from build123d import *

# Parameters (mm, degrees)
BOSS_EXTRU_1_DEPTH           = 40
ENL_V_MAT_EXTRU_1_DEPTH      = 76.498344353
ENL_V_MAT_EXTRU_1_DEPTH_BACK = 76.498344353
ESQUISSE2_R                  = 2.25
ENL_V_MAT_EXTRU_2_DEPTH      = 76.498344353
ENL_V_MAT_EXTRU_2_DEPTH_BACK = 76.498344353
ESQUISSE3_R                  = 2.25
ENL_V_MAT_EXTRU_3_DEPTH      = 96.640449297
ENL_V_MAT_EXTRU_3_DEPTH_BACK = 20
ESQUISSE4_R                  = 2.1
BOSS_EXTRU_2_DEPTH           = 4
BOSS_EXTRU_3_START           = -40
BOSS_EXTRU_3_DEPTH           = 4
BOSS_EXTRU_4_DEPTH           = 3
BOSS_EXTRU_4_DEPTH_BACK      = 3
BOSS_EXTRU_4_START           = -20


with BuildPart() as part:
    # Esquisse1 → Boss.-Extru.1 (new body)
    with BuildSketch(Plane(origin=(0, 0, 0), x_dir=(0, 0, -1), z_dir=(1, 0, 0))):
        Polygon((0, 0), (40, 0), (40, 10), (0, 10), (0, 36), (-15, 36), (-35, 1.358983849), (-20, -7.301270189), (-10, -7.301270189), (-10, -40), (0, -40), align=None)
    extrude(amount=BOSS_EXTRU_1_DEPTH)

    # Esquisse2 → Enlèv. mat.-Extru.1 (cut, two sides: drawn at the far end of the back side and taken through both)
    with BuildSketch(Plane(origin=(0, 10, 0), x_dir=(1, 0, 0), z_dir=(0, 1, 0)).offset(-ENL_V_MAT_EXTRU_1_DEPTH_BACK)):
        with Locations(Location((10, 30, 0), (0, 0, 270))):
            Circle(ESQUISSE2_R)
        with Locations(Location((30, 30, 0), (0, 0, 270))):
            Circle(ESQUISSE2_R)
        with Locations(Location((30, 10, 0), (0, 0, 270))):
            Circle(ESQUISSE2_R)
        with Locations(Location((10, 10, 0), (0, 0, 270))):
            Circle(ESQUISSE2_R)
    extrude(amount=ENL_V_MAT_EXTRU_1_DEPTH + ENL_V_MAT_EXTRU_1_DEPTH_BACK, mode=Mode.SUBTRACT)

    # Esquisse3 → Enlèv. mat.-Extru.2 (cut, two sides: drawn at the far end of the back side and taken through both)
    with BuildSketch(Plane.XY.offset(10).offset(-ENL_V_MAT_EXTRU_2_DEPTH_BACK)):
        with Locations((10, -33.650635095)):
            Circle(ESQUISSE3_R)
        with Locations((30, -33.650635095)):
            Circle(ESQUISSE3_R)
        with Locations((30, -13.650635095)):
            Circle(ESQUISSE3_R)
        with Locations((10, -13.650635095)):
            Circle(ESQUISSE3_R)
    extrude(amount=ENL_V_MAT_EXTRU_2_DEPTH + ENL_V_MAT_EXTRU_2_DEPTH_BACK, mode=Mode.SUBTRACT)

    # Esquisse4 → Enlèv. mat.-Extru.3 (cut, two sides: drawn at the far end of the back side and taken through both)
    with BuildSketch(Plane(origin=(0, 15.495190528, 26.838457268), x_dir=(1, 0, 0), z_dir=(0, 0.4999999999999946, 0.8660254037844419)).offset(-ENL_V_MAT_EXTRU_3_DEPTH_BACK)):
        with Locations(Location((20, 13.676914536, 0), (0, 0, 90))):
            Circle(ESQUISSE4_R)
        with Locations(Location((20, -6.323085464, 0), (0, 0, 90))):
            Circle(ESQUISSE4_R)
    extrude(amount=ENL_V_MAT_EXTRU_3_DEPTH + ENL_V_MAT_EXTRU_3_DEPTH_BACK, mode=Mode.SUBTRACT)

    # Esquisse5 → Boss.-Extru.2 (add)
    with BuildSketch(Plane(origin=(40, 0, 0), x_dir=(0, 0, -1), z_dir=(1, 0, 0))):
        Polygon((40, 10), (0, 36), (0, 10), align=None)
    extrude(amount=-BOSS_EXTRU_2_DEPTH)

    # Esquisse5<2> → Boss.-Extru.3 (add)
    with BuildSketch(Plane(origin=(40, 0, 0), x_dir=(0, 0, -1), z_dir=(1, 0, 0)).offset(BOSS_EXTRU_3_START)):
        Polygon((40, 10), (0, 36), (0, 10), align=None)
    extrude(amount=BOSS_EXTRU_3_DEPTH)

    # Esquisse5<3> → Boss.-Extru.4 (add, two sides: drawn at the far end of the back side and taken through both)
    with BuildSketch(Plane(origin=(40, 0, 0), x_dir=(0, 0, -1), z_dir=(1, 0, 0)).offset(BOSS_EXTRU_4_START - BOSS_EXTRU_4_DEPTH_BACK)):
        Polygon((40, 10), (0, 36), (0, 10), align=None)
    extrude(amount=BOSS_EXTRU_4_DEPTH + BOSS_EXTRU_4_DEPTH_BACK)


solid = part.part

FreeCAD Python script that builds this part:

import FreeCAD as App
import Part
import Sketcher
from FreeCAD import Vector
Q = App.Units.Quantity

doc = App.newDocument("Part")
body = doc.addObject("PartDesign::Body", "Body")

sketch1 = body.newObject("Sketcher::SketchObject", "Sketch")
sketch1.AttachmentSupport = (doc.getObject("YZ_Plane"), [""])
sketch1.MapMode = "FlatFace"
sketch1.addGeometry(Part.LineSegment(Vector(0, 0, 0), Vector(0, -40, 0)), False)
sketch1.addGeometry(Part.LineSegment(Vector(0, -40, 0), Vector(10, -40, 0)), False)
sketch1.addGeometry(Part.LineSegment(Vector(10, -40, 0), Vector(10, 0, 0)), False)
sketch1.addGeometry(Part.LineSegment(Vector(10, 0, 0), Vector(36, 0, 0)), False)
sketch1.addGeometry(Part.LineSegment(Vector(36, 0, 0), Vector(36, 15, 0)), False)
sketch1.addGeometry(Part.LineSegment(Vector(36, 15, 0), Vector(1.358984, 35, 0)), False)
sketch1.addGeometry(Part.LineSegment(Vector(1.358984, 35, 0), Vector(-7.30127, 20, 0)), False)
sketch1.addGeometry(Part.LineSegment(Vector(-7.30127, 20, 0), Vector(-7.30127, 10, 0)), False)
sketch1.addGeometry(Part.LineSegment(Vector(-7.30127, 10, 0), Vector(-40, 10, 0)), False)
sketch1.addGeometry(Part.LineSegment(Vector(-40, 10, 0), Vector(-40, 0, 0)), False)
sketch1.addGeometry(Part.LineSegment(Vector(-40, 0, 0), Vector(0, 0, 0)), False)
sketch1.addConstraint(Sketcher.Constraint("Coincident", 0, 2, 1, 1))
sketch1.addConstraint(Sketcher.Constraint("Coincident", 1, 2, 2, 1))
sketch1.addConstraint(Sketcher.Constraint("Coincident", 2, 2, 3, 1))
sketch1.addConstraint(Sketcher.Constraint("Coincident", 3, 2, 4, 1))
sketch1.addConstraint(Sketcher.Constraint("Coincident", 4, 2, 5, 1))
sketch1.addConstraint(Sketcher.Constraint("Coincident", 5, 2, 6, 1))
sketch1.addConstraint(Sketcher.Constraint("Coincident", 6, 2, 7, 1))
sketch1.addConstraint(Sketcher.Constraint("Coincident", 7, 2, 8, 1))
sketch1.addConstraint(Sketcher.Constraint("Coincident", 8, 2, 9, 1))
sketch1.addConstraint(Sketcher.Constraint("Coincident", 9, 2, 10, 1))
sketch1.addConstraint(Sketcher.Constraint("Coincident", 10, 2, 0, 1))
sketch1.addConstraint(Sketcher.Constraint("Vertical", 0))
sketch1.addConstraint(Sketcher.Constraint("Horizontal", 1))
sketch1.addConstraint(Sketcher.Constraint("Vertical", 2))
sketch1.addConstraint(Sketcher.Constraint("Horizontal", 3))
sketch1.addConstraint(Sketcher.Constraint("Vertical", 4))
sketch1.addConstraint(Sketcher.Constraint("Vertical", 7))
sketch1.addConstraint(Sketcher.Constraint("Horizontal", 8))
sketch1.addConstraint(Sketcher.Constraint("Vertical", 9))
sketch1.addConstraint(Sketcher.Constraint("Horizontal", 10))
sketch1.addConstraint(Sketcher.Constraint("Coincident", 10, 2, -1, 1))
sketch1.addConstraint(Sketcher.Constraint("PointOnObject", 2, 2, -1))
sketch1.addConstraint(Sketcher.Constraint("Perpendicular", 5, 6))
sketch1.addConstraint(Sketcher.Constraint("Equal", 10, 0))
sketch1.addConstraint(Sketcher.Constraint("Equal", 1, 7))
sketch1.addConstraint(Sketcher.Constraint("Equal", 7, 9))
sketch1.addConstraint(Sketcher.Constraint("DistanceX", 1, 1, 1, 2, Q("10 mm")))
sketch1.addConstraint(Sketcher.Constraint("DistanceX", 3, 1, 3, 2, Q("26 mm")))
sketch1.addConstraint(Sketcher.Constraint("DistanceX", 10, 1, 10, 2, Q("40 mm")))
sketch1.addConstraint(Sketcher.Constraint("DistanceY", 4, 1, 4, 2, Q("15 mm")))
sketch1.addConstraint(Sketcher.Constraint("Angle", 5, Q("150 deg")))
sketch1.addConstraint(Sketcher.Constraint("Distance", 5, Q("40 mm")))
pad1 = body.newObject("PartDesign::Pad", "Pad")
pad1.Profile = sketch1
pad1.Length = 40

sketch2 = body.newObject("Sketcher::SketchObject", "Sketch001")
sketch2.AttachmentSupport = (doc.getObject("XZ_Plane"), [""])
sketch2.MapMode = "FlatFace"
sketch2.AttachmentOffset = App.Placement(Vector(0, 0, -10), App.Rotation())
sketch2.addGeometry(Part.Circle(Vector(10, -30, 0), Vector(0, 0, 1), 2.25), False)
sketch2.addGeometry(Part.Circle(Vector(30, -30, 0), Vector(0, 0, 1), 2.25), False)
sketch2.addGeometry(Part.Circle(Vector(30, -10, 0), Vector(0, 0, 1), 2.25), False)
sketch2.addGeometry(Part.Circle(Vector(10, -10, 0), Vector(0, 0, 1), 2.25), False)
sketch2.addConstraint(Sketcher.Constraint("Equal", 0, 1))
sketch2.addConstraint(Sketcher.Constraint("Equal", 1, 2))
sketch2.addConstraint(Sketcher.Constraint("Equal", 2, 3))
sketch2.addConstraint(Sketcher.Constraint("Horizontal", 0, 3, 1, 3))
sketch2.addConstraint(Sketcher.Constraint("Horizontal", 2, 3, 3, 3))
sketch2.addConstraint(Sketcher.Constraint("Vertical", 1, 3, 2, 3))
sketch2.addConstraint(Sketcher.Constraint("Vertical", 0, 3, 3, 3))
sketch2.addConstraint(Sketcher.Constraint("Diameter", 0, Q("4.5 mm")))
sketch2.addConstraint(Sketcher.Constraint("DistanceX", -1, 1, 0, 3, Q("10 mm")))
sketch2.addConstraint(Sketcher.Constraint("DistanceY", 0, 3, -1, 1, Q("30 mm")))
sketch2.addConstraint(Sketcher.Constraint("DistanceX", -1, 1, 1, 3, Q("30 mm")))
sketch2.addConstraint(Sketcher.Constraint("DistanceY", 2, 3, -1, 1, Q("10 mm")))
pocket1 = body.newObject("PartDesign::Pocket", "Pocket")
pocket1.Profile = sketch2
pocket1.Type = "ThroughAll"
pocket1.Midplane = True

sketch3 = body.newObject("Sketcher::SketchObject", "Sketch002")
sketch3.AttachmentSupport = (doc.getObject("XY_Plane"), [""])
sketch3.MapMode = "FlatFace"
sketch3.AttachmentOffset = App.Placement(Vector(0, 0, 10), App.Rotation())
sketch3.addGeometry(Part.Circle(Vector(10, -33.650635, 0), Vector(0, 0, 1), 2.25), False)
sketch3.addGeometry(Part.Circle(Vector(30, -33.650635, 0), Vector(0, 0, 1), 2.25), False)
sketch3.addGeometry(Part.Circle(Vector(30, -13.650635, 0), Vector(0, 0, 1), 2.25), False)
sketch3.addGeometry(Part.Circle(Vector(10, -13.650635, 0), Vector(0, 0, 1), 2.25), False)
sketch3.addConstraint(Sketcher.Constraint("Equal", 0, 1))
sketch3.addConstraint(Sketcher.Constraint("Equal", 1, 2))
sketch3.addConstraint(Sketcher.Constraint("Equal", 2, 3))
sketch3.addConstraint(Sketcher.Constraint("Horizontal", 0, 3, 1, 3))
sketch3.addConstraint(Sketcher.Constraint("Horizontal", 2, 3, 3, 3))
sketch3.addConstraint(Sketcher.Constraint("Vertical", 1, 3, 2, 3))
sketch3.addConstraint(Sketcher.Constraint("Vertical", 0, 3, 3, 3))
sketch3.addConstraint(Sketcher.Constraint("Diameter", 0, Q("4.5 mm")))
sketch3.addConstraint(Sketcher.Constraint("DistanceX", -1, 1, 0, 3, Q("10 mm")))
sketch3.addConstraint(Sketcher.Constraint("DistanceX", -1, 1, 1, 3, Q("30 mm")))
sketch3.addConstraint(Sketcher.Constraint("DistanceY", 1, 3, 2, 3, Q("20 mm")))
sketch3.addConstraint(Sketcher.Constraint("DistanceY", 0, 3, -1, 1, Q("33.650635 mm")))
pocket2 = body.newObject("PartDesign::Pocket", "Pocket001")
pocket2.Profile = sketch3
pocket2.Type = "ThroughAll"
pocket2.Midplane = True

sketch4 = body.newObject("Sketcher::SketchObject", "Sketch003")
sketch4.Placement = App.Placement(Vector(0, 15.495191, 26.838457), App.Rotation(Vector(1, 0, 0), Vector(0, 0.866025404, -0.5), Vector(0, 0.5, 0.866025404), "ZXY"))
sketch4.addGeometry(Part.Circle(Vector(20, 13.676915, 0), Vector(0, 0, 1), 2.1), False)
sketch4.addGeometry(Part.Circle(Vector(20, -6.323085, 0), Vector(0, 0, 1), 2.1), False)
sketch4.addConstraint(Sketcher.Constraint("Equal", 0, 1))
sketch4.addConstraint(Sketcher.Constraint("Vertical", 0, 3, 1, 3))
sketch4.addConstraint(Sketcher.Constraint("Diameter", 0, Q("4.2 mm")))
sketch4.addConstraint(Sketcher.Constraint("DistanceX", -1, 1, 0, 3, Q("20 mm")))
sketch4.addConstraint(Sketcher.Constraint("DistanceY", 1, 3, 0, 3, Q("20 mm")))
sketch4.addConstraint(Sketcher.Constraint("DistanceY", -1, 1, 0, 3, Q("13.676915 mm")))
pocket3 = body.newObject("PartDesign::Pocket", "Pocket002")
pocket3.Profile = sketch4
pocket3.Type = "TwoLengths"
pocket3.Length = 96.640449
pocket3.Length2 = 20
pocket3.Reversed = True

sketch5 = body.newObject("Sketcher::SketchObject", "Sketch004")
sketch5.AttachmentSupport = (doc.getObject("YZ_Plane"), [""])
sketch5.MapMode = "FlatFace"
sketch5.AttachmentOffset = App.Placement(Vector(0, 0, 40), App.Rotation())
sketch5.addGeometry(Part.LineSegment(Vector(10, -40, 0), Vector(36, 0, 0)), False)
sketch5.addGeometry(Part.LineSegment(Vector(36, 0, 0), Vector(10, 0, 0)), False)
sketch5.addGeometry(Part.LineSegment(Vector(10, 0, 0), Vector(10, -40, 0)), False)
sketch5.addConstraint(Sketcher.Constraint("Coincident", 0, 2, 1, 1))
sketch5.addConstraint(Sketcher.Constraint("Coincident", 1, 2, 2, 1))
sketch5.addConstraint(Sketcher.Constraint("Coincident", 2, 2, 0, 1))
sketch5.addConstraint(Sketcher.Constraint("Horizontal", 1))
sketch5.addConstraint(Sketcher.Constraint("Vertical", 2))
sketch5.addConstraint(Sketcher.Constraint("PointOnObject", 0, 2, -1))
sketch5.addConstraint(Sketcher.Constraint("DistanceX", 1, 2, 1, 1, Q("26 mm")))
sketch5.addConstraint(Sketcher.Constraint("DistanceY", 2, 2, 2, 1, Q("40 mm")))
sketch5.addConstraint(Sketcher.Constraint("DistanceX", -1, 1, 0, 2, Q("36 mm")))
pad2 = body.newObject("PartDesign::Pad", "Pad001")
pad2.Profile = sketch5
pad2.Length = 4
pad2.Reversed = True

sketch6 = body.newObject("Sketcher::SketchObject", "Sketch005")
sketch6.AttachmentSupport = (doc.getObject("YZ_Plane"), [""])
sketch6.MapMode = "FlatFace"
sketch6.addGeometry(Part.LineSegment(Vector(10, -40, 0), Vector(36, 0, 0)), False)
sketch6.addGeometry(Part.LineSegment(Vector(36, 0, 0), Vector(10, 0, 0)), False)
sketch6.addGeometry(Part.LineSegment(Vector(10, 0, 0), Vector(10, -40, 0)), False)
sketch6.addConstraint(Sketcher.Constraint("Coincident", 0, 2, 1, 1))
sketch6.addConstraint(Sketcher.Constraint("Coincident", 1, 2, 2, 1))
sketch6.addConstraint(Sketcher.Constraint("Coincident", 2, 2, 0, 1))
sketch6.addConstraint(Sketcher.Constraint("Horizontal", 1))
sketch6.addConstraint(Sketcher.Constraint("Vertical", 2))
sketch6.addConstraint(Sketcher.Constraint("PointOnObject", 0, 2, -1))
sketch6.addConstraint(Sketcher.Constraint("DistanceX", 1, 2, 1, 1, Q("26 mm")))
sketch6.addConstraint(Sketcher.Constraint("DistanceY", 2, 2, 2, 1, Q("40 mm")))
sketch6.addConstraint(Sketcher.Constraint("DistanceX", -1, 1, 0, 2, Q("36 mm")))
pad3 = body.newObject("PartDesign::Pad", "Pad002")
pad3.Profile = sketch6
pad3.Length = 4

sketch7 = body.newObject("Sketcher::SketchObject", "Sketch006")
sketch7.AttachmentSupport = (doc.getObject("YZ_Plane"), [""])
sketch7.MapMode = "FlatFace"
sketch7.AttachmentOffset = App.Placement(Vector(0, 0, 20), App.Rotation())
sketch7.addGeometry(Part.LineSegment(Vector(10, -40, 0), Vector(36, 0, 0)), False)
sketch7.addGeometry(Part.LineSegment(Vector(36, 0, 0), Vector(10, 0, 0)), False)
sketch7.addGeometry(Part.LineSegment(Vector(10, 0, 0), Vector(10, -40, 0)), False)
sketch7.addConstraint(Sketcher.Constraint("Coincident", 0, 2, 1, 1))
sketch7.addConstraint(Sketcher.Constraint("Coincident", 1, 2, 2, 1))
sketch7.addConstraint(Sketcher.Constraint("Coincident", 2, 2, 0, 1))
sketch7.addConstraint(Sketcher.Constraint("Horizontal", 1))
sketch7.addConstraint(Sketcher.Constraint("Vertical", 2))
sketch7.addConstraint(Sketcher.Constraint("PointOnObject", 0, 2, -1))
sketch7.addConstraint(Sketcher.Constraint("DistanceX", 1, 2, 1, 1, Q("26 mm")))
sketch7.addConstraint(Sketcher.Constraint("DistanceY", 2, 2, 2, 1, Q("40 mm")))
sketch7.addConstraint(Sketcher.Constraint("DistanceX", -1, 1, 0, 2, Q("36 mm")))
pad4 = body.newObject("PartDesign::Pad", "Pad003")
pad4.Profile = sketch7
pad4.Type = "TwoLengths"
pad4.Length = 3
pad4.Length2 = 3

doc.recompute()
